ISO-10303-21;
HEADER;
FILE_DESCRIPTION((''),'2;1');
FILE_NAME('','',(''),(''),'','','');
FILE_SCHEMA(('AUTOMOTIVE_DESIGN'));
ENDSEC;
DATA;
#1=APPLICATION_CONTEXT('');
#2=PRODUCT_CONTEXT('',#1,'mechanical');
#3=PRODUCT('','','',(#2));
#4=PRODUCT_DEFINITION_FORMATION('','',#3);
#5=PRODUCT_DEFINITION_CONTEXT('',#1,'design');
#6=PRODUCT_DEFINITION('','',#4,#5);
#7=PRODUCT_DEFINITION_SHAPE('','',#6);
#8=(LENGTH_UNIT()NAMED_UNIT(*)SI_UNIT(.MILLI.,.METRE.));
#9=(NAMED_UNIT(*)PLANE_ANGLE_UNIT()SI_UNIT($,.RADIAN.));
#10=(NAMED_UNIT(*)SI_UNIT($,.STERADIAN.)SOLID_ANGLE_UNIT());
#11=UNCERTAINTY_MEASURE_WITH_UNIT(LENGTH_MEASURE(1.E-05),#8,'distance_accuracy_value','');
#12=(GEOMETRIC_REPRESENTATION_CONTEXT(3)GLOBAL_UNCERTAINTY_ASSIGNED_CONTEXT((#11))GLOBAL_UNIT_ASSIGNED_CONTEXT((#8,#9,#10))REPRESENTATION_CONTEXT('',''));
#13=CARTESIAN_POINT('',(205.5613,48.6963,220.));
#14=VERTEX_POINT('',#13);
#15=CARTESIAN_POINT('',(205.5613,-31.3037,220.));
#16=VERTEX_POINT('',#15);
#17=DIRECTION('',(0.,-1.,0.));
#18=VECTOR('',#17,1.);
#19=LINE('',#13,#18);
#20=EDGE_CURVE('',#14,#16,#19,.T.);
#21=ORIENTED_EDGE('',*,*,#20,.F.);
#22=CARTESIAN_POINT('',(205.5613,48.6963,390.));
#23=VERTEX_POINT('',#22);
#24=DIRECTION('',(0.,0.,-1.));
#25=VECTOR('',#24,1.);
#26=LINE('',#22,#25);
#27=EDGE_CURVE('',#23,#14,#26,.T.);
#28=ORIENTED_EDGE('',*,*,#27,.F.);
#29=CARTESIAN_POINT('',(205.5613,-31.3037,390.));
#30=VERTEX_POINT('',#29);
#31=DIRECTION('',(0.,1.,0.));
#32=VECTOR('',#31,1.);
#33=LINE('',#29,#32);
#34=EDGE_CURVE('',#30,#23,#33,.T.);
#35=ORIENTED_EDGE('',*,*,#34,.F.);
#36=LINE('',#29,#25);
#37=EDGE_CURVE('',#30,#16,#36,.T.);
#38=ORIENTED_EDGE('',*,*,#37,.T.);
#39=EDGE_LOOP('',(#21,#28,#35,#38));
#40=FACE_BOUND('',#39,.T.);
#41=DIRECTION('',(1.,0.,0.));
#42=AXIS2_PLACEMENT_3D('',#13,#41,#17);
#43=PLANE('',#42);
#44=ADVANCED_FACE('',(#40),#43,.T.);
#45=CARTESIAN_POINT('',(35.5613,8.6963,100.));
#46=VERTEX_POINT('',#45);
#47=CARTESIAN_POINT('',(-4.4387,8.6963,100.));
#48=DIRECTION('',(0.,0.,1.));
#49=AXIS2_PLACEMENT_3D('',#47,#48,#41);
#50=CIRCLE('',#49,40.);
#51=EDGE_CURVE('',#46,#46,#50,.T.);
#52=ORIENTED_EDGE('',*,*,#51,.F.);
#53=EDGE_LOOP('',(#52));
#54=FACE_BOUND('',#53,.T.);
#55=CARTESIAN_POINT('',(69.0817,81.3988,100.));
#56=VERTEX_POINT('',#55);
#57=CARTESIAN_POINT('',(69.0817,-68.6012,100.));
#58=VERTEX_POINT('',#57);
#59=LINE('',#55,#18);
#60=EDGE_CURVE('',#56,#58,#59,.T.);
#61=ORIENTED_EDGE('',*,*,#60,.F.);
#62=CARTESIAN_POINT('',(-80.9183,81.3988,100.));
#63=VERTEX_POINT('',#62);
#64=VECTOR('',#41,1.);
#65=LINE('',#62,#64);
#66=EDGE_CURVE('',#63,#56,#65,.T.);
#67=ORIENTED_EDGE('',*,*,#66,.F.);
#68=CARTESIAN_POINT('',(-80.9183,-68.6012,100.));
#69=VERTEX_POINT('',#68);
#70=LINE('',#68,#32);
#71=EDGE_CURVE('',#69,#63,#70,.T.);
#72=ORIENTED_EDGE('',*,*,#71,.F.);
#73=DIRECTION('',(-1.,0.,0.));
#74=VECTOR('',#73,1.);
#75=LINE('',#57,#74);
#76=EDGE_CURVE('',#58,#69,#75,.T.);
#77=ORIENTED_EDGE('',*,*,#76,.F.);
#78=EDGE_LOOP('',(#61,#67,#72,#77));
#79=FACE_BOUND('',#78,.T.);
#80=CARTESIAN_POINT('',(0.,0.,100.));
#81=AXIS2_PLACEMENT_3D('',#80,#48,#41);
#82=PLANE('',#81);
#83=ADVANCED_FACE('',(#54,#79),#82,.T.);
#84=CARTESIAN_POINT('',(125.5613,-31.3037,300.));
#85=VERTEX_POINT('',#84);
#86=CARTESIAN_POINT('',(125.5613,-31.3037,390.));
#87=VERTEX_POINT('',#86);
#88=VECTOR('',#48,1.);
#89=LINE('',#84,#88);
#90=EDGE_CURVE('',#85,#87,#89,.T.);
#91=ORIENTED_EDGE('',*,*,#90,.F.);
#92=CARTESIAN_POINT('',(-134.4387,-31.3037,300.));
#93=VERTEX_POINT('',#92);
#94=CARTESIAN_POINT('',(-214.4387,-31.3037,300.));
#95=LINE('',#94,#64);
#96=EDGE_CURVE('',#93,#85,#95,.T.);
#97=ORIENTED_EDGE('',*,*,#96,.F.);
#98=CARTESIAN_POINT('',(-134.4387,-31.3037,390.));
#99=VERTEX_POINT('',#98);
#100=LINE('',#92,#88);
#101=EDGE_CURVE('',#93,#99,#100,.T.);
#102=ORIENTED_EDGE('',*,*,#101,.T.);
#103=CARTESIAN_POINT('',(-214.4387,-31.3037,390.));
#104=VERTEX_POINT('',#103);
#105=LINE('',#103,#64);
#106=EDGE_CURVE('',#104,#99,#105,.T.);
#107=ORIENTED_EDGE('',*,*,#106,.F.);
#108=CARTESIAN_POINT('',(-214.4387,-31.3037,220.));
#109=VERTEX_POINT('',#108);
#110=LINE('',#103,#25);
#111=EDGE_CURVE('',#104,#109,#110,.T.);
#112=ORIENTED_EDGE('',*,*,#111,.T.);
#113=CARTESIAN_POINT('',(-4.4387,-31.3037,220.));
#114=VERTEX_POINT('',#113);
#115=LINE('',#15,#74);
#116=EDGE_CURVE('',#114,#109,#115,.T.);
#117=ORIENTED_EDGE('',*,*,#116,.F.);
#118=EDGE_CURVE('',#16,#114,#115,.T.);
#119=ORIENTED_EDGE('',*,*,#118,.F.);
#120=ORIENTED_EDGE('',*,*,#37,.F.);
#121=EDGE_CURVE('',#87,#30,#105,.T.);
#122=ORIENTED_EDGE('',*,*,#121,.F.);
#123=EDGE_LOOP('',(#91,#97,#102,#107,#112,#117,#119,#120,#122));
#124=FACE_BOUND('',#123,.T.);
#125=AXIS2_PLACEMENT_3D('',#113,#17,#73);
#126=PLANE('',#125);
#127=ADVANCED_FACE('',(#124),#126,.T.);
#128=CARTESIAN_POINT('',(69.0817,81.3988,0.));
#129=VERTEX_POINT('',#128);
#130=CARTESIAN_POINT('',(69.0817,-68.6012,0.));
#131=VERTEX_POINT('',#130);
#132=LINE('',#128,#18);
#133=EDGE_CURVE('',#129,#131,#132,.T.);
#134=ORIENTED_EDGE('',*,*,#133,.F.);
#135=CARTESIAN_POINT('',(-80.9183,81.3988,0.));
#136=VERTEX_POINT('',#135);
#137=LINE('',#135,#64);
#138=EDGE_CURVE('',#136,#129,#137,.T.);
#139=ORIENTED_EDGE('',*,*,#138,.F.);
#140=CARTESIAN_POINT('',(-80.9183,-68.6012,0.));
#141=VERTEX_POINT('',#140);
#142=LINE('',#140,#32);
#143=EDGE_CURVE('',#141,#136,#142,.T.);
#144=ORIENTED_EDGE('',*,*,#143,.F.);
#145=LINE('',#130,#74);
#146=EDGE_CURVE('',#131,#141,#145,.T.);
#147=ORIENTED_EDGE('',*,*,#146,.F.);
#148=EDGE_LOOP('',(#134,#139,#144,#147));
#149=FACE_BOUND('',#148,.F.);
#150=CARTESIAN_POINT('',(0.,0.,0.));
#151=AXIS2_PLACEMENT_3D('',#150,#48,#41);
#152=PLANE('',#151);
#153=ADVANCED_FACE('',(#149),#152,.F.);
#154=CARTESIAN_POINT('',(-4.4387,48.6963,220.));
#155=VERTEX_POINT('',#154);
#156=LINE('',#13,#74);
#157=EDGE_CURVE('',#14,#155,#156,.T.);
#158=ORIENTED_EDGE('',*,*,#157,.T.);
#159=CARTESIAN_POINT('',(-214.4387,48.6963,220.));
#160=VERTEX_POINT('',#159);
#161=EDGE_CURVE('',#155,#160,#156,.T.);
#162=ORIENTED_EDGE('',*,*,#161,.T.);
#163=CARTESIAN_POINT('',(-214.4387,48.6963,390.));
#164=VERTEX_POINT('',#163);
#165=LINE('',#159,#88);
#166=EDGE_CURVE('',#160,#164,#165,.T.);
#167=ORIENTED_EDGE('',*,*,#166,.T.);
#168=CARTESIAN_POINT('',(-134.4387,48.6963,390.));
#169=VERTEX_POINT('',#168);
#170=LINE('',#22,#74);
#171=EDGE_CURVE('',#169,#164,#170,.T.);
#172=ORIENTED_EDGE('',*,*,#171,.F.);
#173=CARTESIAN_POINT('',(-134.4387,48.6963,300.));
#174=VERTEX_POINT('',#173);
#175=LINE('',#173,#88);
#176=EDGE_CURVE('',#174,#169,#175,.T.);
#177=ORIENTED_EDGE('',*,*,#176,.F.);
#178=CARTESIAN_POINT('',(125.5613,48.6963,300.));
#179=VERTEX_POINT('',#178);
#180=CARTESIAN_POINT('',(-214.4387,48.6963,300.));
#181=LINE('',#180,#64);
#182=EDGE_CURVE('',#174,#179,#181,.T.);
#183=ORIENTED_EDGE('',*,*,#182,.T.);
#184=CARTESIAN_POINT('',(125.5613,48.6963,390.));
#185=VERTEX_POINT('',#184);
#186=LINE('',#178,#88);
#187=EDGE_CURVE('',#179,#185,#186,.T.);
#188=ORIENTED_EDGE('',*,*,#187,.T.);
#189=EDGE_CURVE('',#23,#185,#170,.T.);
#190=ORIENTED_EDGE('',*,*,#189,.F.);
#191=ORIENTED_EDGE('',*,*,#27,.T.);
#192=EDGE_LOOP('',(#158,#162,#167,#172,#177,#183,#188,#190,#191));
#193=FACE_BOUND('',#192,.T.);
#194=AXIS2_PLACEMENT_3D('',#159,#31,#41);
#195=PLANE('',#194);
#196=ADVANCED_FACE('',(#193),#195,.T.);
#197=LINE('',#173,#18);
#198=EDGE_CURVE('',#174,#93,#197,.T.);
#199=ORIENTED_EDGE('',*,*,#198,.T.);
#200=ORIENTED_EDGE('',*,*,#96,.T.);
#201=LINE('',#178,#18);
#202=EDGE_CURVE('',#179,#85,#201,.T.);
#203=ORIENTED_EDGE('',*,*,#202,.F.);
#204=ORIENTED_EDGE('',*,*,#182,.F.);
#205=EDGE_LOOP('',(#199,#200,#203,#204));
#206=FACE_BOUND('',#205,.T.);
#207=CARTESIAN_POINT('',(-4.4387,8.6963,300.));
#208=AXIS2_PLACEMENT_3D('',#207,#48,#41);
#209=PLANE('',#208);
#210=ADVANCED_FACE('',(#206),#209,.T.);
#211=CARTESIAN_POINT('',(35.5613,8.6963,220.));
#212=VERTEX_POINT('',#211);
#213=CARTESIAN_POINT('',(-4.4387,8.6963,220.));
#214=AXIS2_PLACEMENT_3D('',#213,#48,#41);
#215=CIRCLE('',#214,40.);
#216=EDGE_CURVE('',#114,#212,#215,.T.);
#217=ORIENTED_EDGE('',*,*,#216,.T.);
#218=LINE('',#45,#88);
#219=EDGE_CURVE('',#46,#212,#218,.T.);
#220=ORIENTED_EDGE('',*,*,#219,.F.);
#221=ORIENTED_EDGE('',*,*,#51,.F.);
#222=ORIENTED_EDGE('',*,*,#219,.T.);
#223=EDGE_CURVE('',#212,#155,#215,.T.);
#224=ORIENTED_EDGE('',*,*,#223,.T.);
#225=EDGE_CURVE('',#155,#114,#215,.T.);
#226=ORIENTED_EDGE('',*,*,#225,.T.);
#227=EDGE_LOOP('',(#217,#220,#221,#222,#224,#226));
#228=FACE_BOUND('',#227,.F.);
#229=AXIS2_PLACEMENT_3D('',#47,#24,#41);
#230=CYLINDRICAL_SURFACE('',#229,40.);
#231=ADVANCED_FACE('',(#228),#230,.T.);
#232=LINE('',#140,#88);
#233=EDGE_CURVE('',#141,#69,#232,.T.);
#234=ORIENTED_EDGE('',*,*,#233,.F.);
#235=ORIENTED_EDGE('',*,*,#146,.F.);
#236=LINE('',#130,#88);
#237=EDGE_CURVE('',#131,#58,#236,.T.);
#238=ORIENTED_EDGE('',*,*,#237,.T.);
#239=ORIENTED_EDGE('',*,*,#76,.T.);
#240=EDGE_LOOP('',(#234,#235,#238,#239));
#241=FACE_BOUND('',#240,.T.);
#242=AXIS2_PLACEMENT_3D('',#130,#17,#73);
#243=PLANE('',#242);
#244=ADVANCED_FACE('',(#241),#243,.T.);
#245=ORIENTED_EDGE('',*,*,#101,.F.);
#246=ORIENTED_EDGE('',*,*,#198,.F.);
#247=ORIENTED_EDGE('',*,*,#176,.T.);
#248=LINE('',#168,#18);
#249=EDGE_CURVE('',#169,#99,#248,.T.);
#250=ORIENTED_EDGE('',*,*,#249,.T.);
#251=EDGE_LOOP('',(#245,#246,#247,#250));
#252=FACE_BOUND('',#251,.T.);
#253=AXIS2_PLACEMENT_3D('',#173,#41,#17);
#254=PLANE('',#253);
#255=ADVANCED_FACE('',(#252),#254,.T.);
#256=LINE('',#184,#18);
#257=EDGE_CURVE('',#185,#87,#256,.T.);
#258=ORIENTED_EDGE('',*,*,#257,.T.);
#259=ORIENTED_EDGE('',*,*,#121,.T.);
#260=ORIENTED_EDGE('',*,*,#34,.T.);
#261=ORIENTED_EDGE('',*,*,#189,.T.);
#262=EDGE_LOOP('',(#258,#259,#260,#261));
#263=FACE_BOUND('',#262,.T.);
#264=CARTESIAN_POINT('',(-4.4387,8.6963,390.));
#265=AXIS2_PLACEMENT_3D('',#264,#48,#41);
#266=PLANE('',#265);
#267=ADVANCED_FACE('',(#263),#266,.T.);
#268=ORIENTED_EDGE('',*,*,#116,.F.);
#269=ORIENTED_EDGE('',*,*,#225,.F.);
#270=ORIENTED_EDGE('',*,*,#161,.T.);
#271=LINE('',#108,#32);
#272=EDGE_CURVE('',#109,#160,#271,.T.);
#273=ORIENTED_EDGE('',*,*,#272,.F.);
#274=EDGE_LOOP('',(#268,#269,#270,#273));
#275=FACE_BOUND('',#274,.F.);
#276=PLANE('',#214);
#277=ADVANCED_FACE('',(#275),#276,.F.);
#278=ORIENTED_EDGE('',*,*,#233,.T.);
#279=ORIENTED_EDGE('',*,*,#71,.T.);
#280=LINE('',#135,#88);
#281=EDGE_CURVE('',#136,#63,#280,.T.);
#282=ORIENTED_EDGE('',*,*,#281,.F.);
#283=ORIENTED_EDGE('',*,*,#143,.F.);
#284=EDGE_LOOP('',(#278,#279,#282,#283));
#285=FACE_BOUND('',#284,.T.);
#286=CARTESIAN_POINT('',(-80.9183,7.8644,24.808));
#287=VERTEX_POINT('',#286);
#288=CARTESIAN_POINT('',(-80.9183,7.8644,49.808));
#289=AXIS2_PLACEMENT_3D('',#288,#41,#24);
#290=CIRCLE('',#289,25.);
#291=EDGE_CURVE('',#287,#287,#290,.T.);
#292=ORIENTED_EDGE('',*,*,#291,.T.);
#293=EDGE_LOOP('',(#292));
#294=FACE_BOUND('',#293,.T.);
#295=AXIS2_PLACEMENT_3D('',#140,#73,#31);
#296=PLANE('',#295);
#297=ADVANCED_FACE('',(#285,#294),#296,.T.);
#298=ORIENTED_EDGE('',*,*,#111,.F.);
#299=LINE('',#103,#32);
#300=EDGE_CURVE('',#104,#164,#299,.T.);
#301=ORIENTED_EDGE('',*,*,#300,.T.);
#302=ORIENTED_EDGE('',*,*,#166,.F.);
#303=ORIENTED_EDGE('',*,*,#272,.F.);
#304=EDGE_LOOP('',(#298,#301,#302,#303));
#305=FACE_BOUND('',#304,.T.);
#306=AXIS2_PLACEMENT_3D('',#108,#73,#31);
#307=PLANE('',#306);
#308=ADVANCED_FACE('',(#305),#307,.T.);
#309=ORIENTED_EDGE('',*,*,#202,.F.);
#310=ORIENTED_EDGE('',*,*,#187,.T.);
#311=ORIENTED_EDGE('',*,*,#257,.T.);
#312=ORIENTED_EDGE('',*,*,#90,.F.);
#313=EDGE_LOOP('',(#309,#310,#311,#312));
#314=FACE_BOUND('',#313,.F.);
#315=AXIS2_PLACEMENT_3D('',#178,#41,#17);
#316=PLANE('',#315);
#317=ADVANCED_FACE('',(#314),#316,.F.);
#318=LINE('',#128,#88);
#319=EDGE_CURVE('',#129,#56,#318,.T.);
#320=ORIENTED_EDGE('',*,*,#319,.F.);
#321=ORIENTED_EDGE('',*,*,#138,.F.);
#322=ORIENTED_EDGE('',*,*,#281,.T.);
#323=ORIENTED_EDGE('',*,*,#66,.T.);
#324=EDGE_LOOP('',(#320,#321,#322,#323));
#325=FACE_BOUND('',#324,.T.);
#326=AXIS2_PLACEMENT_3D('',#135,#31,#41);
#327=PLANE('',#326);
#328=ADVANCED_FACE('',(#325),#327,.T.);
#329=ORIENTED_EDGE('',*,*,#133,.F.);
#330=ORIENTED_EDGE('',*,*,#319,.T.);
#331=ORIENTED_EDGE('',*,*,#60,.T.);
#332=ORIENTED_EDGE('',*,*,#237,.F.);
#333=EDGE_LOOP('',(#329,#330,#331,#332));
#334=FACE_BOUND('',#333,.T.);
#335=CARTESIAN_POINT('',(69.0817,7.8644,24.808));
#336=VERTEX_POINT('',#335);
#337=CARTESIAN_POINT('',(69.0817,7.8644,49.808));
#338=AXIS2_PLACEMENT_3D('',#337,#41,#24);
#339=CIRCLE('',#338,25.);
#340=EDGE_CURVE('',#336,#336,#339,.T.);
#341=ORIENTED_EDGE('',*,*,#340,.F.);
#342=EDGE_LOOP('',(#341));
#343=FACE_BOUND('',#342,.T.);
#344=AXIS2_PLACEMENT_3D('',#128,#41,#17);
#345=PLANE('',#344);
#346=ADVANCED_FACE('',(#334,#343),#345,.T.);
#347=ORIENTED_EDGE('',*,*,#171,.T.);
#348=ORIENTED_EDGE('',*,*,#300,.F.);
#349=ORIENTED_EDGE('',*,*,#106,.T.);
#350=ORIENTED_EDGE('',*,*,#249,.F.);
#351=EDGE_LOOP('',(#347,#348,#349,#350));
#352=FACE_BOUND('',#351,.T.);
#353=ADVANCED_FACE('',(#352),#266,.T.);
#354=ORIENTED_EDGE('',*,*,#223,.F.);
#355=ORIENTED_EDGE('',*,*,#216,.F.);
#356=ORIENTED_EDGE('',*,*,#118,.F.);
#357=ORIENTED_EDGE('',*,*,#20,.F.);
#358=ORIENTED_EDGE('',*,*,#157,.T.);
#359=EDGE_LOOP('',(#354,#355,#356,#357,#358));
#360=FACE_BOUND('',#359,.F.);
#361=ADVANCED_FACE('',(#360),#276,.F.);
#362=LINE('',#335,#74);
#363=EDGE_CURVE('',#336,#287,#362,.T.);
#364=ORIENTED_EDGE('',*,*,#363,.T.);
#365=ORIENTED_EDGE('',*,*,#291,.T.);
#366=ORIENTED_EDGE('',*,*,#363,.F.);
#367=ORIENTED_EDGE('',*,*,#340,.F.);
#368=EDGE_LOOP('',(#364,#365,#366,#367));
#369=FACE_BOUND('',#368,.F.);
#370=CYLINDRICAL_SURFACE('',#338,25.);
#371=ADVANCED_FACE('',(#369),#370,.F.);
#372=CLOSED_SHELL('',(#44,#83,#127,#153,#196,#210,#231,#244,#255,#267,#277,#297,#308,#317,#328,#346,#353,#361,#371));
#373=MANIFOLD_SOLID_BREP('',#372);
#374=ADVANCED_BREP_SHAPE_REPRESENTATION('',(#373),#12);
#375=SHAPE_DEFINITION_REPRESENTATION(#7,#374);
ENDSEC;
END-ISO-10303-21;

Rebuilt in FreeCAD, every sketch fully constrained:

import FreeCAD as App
import Part
import Sketcher

V = App.Vector


def add_polygon(sketch, points):
    """Adds a closed chain of lines whose ends are joined by coincident constraints."""
    first, n = sketch.GeometryCount, len(points)
    for a, b in zip(points, points[1:] + points[:1]):
        sketch.addGeometry(Part.LineSegment(App.Vector(*a, 0), App.Vector(*b, 0)), False)
    for i in range(n):
        sketch.addConstraint(Sketcher.Constraint("Coincident", first + i, 2, first + (i + 1) % n, 1))

doc = App.newDocument("Part")
body = doc.addObject("PartDesign::Body", "Body")

# Sketch on XY plane
sketch1 = doc.addObject("Sketcher::SketchObject", "Sketch")
body.addObject(sketch1)
sketch1.AttachmentSupport = (doc.XY_Plane, [""])
sketch1.MapMode = "FlatFace"
add_polygon(sketch1, [(69, 81), (-81, 81), (-81, -69), (69, -69)])  # lines 0-3
sketch1.addConstraint([
    Sketcher.Constraint("Horizontal", 0),
    Sketcher.Constraint("Vertical", 1),
    Sketcher.Constraint("Horizontal", 2),
    Sketcher.Constraint("Vertical", 3),
    Sketcher.Constraint("Equal", 2, 1),
    Sketcher.Constraint("DistanceX", 0, 2, 0, 1, 150.0),
    Sketcher.Constraint("DistanceX", 0, 2, -1, 1, 80.9183),
    Sketcher.Constraint("DistanceY", -1, 1, 0, 2, 81.3988),
])
pad1 = doc.addObject("PartDesign::Pad", "Pad")
body.addObject(pad1)
pad1.Profile = sketch1
pad1.Length = 100

# Sketch on XY plane
sketch2 = doc.addObject("Sketcher::SketchObject", "Sketch001")
body.addObject(sketch2)
sketch2.AttachmentSupport = (doc.XY_Plane, [""])
sketch2.MapMode = "FlatFace"
sketch2.AttachmentOffset = App.Placement(V(0, 0, 100), App.Rotation())
sketch2.addGeometry(Part.Circle(V(-4, 9, 0), V(0, 0, 1), 40), False)
sketch2.addConstraint([
    Sketcher.Constraint("Diameter", 0, 80.0),
    Sketcher.Constraint("DistanceX", 0, 3, -1, 1, 4.4387),
    Sketcher.Constraint("DistanceY", -1, 1, 0, 3, 8.6963),
])
pad2 = doc.addObject("PartDesign::Pad", "Pad001")
body.addObject(pad2)
pad2.Profile = sketch2
pad2.Length = 120

# Sketch on XY plane
sketch3 = doc.addObject("Sketcher::SketchObject", "Sketch002")
body.addObject(sketch3)
sketch3.AttachmentSupport = (doc.XY_Plane, [""])
sketch3.MapMode = "FlatFace"
sketch3.AttachmentOffset = App.Placement(V(0, 0, 220), App.Rotation())
add_polygon(sketch3, [(-214, 49), (-214, -31), (206, -31), (206, 49)])  # lines 0-3
sketch3.addConstraint([
    Sketcher.Constraint("Vertical", 0),
    Sketcher.Constraint("Horizontal", 1),
    Sketcher.Constraint("Vertical", 2),
    Sketcher.Constraint("Horizontal", 3),
    Sketcher.Constraint("DistanceX", 1, 1, 1, 2, 420.0),
    Sketcher.Constraint("DistanceY", 0, 2, 0, 1, 80.0),
    Sketcher.Constraint("DistanceX", 0, 2, -1, 1, 214.4387),
    Sketcher.Constraint("DistanceY", 0, 2, -1, 1, 31.3037),
])
pad3 = doc.addObject("PartDesign::Pad", "Pad002")
body.addObject(pad3)
pad3.Profile = sketch3
pad3.Length = 80

# Sketch on XY plane
sketch4 = doc.addObject("Sketcher::SketchObject", "Sketch003")
body.addObject(sketch4)
sketch4.AttachmentSupport = (doc.XY_Plane, [""])
sketch4.MapMode = "FlatFace"
sketch4.AttachmentOffset = App.Placement(V(0, 0, 300), App.Rotation())
add_polygon(sketch4, [(206, -31), (206, 49), (126, 49), (126, -31)])  # lines 0-3
add_polygon(sketch4, [(-134, -31), (-134, 49), (-214, 49), (-214, -31)])  # lines 4-7
sketch4.addConstraint([
    Sketcher.Constraint("Vertical", 0),
    Sketcher.Constraint("Horizontal", 1),
    Sketcher.Constraint("Vertical", 2),
    Sketcher.Constraint("Horizontal", 3),
    Sketcher.Constraint("Vertical", 4),
    Sketcher.Constraint("Horizontal", 5),
    Sketcher.Constraint("Vertical", 6),
    Sketcher.Constraint("Horizontal", 7),
    Sketcher.Constraint("Horizontal", 1, 2, 4, 2),
    Sketcher.Constraint("Horizontal", 3, 2, 6, 2),
    Sketcher.Constraint("Equal", 3, 5),
    Sketcher.Constraint("Equal", 7, 0),
    Sketcher.Constraint("DistanceX", 1, 2, 1, 1, 80.0),
    Sketcher.Constraint("DistanceX", 4, 2, 1, 2, 260.0),
    Sketcher.Constraint("DistanceX", -1, 1, 0, 2, 205.5613),
    Sketcher.Constraint("DistanceY", -1, 1, 0, 2, 48.6963),
])
pad4 = doc.addObject("PartDesign::Pad", "Pad003")
body.addObject(pad4)
pad4.Profile = sketch4
pad4.Length = 90

# Sketch on YZ plane
sketch5 = doc.addObject("Sketcher::SketchObject", "Sketch004")
body.addObject(sketch5)
sketch5.AttachmentSupport = (doc.YZ_Plane, [""])
sketch5.MapMode = "FlatFace"
sketch5.AttachmentOffset = App.Placement(V(0, 0, 69.0817), App.Rotation())
sketch5.addGeometry(Part.Circle(V(8, 50, 0), V(0, 0, 1), 25), False)
sketch5.addConstraint([
    Sketcher.Constraint("Diameter", 0, 50.0),
    Sketcher.Constraint("DistanceY", -1, 1, 0, 3, 49.808),
    Sketcher.Constraint("DistanceX", -1, 1, 0, 3, 7.8644),
])
pocket1 = doc.addObject("PartDesign::Pocket", "Pocket")
body.addObject(pocket1)
pocket1.Profile = sketch5
pocket1.Length = 500

doc.recompute()
